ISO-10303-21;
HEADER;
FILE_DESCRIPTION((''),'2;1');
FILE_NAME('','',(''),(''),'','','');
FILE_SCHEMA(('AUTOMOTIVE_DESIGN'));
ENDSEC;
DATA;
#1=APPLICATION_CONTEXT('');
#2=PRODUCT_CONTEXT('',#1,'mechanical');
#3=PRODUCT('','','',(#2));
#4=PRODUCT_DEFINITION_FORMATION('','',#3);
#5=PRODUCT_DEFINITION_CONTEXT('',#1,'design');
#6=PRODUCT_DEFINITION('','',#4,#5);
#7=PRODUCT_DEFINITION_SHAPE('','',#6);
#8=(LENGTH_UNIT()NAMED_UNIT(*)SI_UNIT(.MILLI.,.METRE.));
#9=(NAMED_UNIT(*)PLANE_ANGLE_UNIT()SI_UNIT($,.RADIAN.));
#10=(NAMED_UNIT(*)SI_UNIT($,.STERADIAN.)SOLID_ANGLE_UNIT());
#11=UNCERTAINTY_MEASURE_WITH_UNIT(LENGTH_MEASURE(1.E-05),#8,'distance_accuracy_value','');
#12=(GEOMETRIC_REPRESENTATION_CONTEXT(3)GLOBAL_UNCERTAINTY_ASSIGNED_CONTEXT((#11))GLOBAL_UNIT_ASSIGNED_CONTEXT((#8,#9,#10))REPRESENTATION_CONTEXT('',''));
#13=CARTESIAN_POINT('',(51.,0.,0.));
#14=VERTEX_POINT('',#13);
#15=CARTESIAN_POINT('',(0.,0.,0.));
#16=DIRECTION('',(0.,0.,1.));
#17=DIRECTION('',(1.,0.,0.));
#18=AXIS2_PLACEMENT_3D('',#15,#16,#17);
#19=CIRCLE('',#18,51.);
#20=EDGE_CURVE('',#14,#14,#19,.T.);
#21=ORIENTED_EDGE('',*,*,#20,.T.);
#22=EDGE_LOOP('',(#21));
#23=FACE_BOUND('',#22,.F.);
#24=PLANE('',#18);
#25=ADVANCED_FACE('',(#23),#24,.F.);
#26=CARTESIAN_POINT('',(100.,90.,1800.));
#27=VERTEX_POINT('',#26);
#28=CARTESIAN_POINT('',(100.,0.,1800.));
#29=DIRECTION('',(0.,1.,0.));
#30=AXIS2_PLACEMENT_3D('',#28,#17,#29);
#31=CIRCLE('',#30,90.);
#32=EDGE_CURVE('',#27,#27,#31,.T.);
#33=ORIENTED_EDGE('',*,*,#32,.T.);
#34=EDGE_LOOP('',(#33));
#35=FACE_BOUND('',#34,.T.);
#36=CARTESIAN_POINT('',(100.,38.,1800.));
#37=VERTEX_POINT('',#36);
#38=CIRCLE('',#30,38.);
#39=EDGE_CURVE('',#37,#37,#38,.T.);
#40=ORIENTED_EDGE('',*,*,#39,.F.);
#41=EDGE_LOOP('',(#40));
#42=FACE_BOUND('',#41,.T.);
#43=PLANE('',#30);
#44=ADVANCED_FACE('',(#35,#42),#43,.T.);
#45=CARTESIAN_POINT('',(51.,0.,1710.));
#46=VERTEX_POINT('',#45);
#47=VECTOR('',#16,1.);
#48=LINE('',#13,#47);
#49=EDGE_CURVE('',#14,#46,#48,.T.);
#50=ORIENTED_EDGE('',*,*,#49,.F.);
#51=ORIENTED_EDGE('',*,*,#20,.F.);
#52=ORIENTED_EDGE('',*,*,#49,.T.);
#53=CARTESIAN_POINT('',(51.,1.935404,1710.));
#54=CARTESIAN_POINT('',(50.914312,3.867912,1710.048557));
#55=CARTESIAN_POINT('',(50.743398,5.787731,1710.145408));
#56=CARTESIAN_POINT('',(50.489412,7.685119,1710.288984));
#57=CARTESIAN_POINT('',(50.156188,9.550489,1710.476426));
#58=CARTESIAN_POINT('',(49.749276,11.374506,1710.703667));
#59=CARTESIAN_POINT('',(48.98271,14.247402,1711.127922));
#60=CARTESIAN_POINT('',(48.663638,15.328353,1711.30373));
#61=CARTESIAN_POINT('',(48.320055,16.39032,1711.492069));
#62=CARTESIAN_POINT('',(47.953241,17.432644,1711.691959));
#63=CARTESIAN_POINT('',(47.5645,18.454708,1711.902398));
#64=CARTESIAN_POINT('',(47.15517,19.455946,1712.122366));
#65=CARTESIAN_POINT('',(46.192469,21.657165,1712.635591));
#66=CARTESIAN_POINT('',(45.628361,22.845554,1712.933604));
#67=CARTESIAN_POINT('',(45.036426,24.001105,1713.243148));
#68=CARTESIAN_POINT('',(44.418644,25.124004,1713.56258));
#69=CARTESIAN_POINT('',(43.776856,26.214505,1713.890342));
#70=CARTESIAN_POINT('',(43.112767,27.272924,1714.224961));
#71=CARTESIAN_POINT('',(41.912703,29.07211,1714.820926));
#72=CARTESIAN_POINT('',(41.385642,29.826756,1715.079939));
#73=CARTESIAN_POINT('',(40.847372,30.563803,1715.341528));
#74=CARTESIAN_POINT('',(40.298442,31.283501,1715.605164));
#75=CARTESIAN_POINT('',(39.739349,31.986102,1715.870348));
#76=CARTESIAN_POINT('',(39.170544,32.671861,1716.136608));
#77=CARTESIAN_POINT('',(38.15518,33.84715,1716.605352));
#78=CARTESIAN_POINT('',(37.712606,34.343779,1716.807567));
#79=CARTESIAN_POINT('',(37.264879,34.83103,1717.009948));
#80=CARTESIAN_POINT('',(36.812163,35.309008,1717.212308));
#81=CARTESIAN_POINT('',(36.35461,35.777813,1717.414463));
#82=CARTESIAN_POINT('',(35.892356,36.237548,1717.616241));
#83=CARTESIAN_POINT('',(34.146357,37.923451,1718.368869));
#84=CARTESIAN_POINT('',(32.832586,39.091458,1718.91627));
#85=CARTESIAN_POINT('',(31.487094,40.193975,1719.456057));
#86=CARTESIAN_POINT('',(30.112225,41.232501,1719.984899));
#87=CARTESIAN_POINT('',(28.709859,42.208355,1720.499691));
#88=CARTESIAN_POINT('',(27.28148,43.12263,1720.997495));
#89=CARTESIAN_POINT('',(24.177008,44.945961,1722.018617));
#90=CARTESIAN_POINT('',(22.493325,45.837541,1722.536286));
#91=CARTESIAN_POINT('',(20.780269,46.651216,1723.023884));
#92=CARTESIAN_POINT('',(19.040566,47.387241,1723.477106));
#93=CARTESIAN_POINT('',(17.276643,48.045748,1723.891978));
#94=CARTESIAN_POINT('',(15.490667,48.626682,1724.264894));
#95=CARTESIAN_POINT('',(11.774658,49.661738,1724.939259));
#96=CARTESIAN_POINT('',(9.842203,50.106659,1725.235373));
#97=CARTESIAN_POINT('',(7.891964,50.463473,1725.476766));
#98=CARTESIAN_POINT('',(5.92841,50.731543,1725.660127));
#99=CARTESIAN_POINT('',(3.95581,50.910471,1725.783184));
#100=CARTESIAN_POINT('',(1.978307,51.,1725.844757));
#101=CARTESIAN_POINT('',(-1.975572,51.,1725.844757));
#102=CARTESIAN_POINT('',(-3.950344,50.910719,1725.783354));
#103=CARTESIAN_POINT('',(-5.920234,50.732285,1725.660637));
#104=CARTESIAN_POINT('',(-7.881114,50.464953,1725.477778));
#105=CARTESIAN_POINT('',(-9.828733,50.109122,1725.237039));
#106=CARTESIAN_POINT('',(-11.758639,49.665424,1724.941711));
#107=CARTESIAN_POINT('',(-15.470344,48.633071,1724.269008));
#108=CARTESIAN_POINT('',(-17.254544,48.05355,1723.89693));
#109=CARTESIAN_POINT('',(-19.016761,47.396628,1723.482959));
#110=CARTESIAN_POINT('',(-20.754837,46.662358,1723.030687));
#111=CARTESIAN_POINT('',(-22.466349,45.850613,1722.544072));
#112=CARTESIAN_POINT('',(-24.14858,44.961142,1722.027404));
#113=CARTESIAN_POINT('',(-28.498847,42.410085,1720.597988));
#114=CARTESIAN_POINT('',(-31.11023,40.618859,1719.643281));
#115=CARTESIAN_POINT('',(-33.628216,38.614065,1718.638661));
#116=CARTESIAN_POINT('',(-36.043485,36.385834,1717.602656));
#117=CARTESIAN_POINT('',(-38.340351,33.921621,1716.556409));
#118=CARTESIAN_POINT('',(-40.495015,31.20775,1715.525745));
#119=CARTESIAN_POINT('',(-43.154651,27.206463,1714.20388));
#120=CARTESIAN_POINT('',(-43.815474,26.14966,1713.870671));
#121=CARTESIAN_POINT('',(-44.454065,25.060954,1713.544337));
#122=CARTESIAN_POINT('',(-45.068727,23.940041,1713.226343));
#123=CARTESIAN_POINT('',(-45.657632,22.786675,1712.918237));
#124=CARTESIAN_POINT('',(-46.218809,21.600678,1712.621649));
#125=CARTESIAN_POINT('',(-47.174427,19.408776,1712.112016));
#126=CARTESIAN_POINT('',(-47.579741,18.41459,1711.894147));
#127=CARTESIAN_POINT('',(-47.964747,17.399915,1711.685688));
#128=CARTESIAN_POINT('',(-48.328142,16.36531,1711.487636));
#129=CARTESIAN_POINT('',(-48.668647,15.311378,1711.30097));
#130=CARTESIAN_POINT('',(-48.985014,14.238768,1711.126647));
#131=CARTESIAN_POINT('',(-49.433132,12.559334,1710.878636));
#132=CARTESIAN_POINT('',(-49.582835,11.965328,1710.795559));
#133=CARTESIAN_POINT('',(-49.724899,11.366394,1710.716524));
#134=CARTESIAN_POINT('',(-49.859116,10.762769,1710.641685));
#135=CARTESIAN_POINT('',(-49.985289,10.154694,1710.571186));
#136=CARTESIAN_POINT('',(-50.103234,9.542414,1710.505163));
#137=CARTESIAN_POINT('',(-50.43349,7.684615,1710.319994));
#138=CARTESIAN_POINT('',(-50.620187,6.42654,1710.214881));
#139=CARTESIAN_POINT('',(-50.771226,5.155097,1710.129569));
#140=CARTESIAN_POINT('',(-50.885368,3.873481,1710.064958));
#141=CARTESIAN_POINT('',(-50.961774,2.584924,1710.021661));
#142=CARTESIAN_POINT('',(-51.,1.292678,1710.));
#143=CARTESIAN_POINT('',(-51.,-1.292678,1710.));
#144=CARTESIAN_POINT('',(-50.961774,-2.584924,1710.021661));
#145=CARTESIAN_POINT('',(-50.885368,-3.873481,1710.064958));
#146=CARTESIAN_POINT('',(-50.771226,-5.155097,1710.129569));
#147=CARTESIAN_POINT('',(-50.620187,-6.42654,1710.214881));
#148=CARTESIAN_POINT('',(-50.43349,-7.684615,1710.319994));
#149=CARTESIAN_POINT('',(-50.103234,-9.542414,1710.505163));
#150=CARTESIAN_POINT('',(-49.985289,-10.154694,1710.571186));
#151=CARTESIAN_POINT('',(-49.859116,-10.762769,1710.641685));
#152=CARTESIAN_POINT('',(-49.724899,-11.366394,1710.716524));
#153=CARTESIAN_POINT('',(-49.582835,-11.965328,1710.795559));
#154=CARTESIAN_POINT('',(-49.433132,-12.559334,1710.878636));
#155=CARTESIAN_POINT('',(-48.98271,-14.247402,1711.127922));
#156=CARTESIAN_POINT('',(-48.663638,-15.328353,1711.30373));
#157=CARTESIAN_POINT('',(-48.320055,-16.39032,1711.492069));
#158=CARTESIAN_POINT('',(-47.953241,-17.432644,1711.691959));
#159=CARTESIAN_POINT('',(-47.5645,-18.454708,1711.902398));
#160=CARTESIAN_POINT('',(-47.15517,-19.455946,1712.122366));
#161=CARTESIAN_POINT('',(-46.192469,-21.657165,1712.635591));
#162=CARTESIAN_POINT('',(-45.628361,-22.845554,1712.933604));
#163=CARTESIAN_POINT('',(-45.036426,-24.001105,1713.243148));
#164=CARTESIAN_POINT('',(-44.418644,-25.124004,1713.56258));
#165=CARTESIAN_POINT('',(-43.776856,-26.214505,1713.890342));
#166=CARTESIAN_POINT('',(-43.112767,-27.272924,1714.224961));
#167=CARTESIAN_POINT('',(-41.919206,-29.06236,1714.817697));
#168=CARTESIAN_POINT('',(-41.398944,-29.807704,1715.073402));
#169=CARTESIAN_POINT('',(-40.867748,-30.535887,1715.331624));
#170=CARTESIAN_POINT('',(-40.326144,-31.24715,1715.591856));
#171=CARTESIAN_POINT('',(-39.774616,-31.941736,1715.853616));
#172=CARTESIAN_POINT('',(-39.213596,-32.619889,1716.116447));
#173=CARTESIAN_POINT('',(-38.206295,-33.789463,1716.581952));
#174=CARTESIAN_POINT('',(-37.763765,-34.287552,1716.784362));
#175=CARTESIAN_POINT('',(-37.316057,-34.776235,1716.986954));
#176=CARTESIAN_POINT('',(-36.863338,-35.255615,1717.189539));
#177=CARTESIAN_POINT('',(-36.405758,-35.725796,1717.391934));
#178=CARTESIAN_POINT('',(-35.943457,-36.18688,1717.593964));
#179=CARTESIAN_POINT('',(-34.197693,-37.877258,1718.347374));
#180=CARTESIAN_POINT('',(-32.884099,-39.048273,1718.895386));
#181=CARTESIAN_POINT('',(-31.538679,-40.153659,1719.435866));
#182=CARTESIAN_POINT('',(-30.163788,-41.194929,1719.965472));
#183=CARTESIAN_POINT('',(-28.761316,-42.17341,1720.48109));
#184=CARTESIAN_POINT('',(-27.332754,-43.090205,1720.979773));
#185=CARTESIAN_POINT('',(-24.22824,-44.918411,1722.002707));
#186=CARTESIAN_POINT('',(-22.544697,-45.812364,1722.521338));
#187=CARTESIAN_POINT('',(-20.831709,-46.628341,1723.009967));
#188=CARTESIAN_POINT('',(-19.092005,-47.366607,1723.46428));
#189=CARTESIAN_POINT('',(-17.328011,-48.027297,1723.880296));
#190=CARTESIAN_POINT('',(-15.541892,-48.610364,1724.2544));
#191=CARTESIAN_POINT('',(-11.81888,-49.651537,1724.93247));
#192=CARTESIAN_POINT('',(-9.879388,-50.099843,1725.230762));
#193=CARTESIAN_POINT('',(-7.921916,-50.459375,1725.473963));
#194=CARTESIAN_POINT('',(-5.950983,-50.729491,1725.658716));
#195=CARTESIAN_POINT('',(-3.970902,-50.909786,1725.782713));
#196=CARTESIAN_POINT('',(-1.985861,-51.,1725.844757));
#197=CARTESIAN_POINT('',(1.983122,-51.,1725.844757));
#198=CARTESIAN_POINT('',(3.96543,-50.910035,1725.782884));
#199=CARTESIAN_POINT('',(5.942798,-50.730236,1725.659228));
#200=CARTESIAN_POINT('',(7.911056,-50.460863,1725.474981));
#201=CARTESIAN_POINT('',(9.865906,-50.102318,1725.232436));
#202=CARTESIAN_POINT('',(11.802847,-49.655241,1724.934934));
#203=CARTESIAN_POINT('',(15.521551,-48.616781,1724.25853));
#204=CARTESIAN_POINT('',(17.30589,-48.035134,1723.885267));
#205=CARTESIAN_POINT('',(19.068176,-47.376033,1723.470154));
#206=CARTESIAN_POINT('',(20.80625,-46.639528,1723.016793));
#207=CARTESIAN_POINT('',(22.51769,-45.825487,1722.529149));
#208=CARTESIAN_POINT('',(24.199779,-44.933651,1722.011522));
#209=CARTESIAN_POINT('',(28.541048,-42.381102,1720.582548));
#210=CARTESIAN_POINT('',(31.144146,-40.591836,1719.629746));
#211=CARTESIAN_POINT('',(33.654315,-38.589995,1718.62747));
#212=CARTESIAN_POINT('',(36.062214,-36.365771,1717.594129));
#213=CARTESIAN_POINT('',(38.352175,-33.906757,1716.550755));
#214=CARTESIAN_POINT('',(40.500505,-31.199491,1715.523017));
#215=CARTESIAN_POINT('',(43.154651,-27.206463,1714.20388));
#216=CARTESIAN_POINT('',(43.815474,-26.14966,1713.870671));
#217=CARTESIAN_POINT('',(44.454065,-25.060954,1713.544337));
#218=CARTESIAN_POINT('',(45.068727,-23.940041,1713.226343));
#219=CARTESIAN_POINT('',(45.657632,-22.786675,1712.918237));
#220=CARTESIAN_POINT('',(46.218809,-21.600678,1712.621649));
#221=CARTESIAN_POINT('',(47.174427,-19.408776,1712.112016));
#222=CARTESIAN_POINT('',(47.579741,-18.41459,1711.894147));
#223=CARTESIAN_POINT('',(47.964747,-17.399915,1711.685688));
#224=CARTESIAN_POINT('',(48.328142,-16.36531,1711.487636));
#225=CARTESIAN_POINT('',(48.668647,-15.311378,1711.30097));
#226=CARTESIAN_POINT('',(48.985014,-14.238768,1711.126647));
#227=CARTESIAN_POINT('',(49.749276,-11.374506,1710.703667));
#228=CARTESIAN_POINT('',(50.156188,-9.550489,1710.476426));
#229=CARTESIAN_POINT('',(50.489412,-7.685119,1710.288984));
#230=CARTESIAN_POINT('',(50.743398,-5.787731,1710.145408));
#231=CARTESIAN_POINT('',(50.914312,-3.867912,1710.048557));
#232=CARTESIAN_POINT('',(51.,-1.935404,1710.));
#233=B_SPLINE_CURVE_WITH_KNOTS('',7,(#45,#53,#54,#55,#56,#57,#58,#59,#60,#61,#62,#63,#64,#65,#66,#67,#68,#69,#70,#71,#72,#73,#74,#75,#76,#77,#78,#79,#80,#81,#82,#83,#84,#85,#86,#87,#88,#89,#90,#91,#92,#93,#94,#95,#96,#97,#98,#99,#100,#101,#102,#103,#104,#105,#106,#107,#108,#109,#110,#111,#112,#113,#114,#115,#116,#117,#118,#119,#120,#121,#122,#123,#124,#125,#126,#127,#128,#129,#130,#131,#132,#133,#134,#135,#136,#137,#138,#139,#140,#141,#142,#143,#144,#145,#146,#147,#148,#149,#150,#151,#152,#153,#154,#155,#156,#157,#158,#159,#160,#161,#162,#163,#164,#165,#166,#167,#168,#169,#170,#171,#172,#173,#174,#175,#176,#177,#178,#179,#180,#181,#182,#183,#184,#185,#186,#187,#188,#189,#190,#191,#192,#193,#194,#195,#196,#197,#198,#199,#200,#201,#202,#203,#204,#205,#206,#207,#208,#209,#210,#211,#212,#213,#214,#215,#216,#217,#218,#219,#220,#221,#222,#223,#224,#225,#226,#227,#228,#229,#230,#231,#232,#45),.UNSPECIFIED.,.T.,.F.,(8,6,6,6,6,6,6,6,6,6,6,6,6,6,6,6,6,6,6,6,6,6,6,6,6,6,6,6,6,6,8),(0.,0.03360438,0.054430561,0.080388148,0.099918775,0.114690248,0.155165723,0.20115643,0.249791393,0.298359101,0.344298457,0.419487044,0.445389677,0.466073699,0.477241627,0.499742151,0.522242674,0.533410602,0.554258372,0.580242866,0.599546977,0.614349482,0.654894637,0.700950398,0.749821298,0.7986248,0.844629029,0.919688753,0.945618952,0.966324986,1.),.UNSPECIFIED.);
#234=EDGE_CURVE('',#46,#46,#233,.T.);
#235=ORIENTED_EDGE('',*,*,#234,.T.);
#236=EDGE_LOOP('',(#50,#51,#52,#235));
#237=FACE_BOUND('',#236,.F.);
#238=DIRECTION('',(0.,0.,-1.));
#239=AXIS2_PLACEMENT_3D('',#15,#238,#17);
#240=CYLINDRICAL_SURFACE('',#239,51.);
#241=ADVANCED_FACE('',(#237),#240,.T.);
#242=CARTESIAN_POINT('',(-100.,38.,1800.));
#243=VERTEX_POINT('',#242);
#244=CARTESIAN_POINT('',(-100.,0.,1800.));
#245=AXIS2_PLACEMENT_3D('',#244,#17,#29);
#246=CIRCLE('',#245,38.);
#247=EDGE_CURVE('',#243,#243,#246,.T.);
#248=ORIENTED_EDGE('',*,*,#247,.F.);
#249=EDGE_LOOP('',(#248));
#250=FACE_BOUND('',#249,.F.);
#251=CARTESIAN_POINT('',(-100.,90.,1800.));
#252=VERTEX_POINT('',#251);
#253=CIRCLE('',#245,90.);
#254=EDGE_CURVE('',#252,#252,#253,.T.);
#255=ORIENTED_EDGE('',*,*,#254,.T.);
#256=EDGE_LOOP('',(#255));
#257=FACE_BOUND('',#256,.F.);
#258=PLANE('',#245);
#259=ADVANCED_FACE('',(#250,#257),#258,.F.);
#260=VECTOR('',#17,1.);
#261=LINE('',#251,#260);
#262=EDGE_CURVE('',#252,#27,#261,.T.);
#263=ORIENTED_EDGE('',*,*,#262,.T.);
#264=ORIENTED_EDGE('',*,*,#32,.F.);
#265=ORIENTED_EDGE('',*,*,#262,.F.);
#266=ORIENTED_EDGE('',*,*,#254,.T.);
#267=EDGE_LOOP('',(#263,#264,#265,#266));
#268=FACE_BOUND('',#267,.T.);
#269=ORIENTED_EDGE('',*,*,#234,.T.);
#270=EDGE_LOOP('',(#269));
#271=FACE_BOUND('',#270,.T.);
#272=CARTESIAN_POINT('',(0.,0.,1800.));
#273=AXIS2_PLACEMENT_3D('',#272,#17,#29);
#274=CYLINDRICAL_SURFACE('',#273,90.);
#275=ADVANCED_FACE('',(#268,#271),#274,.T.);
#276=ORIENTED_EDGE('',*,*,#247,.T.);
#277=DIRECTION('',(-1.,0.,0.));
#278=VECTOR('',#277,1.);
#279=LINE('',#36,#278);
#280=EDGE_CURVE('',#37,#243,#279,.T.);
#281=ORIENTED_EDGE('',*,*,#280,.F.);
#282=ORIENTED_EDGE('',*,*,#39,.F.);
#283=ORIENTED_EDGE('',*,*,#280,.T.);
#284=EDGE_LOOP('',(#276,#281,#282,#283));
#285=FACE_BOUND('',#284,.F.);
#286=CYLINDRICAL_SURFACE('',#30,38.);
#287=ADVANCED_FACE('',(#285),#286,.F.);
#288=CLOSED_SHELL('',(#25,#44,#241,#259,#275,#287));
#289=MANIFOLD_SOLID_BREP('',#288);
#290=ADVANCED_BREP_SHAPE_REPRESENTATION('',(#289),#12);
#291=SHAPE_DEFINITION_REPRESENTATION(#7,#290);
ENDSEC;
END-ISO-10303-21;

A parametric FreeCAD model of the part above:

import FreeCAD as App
import Part
import Sketcher
from FreeCAD import Vector

doc = App.newDocument("Part")
body = doc.addObject("PartDesign::Body", "Body")

# Sketch on XY plane
sketch1 = body.newObject("Sketcher::SketchObject", "Sketch")
sketch1.AttachmentSupport = (doc.getObject("XY_Plane"), [""])
sketch1.MapMode = "FlatFace"
sketch1.addGeometry(Part.Circle(Vector(0, 0, 0), Vector(0, 0, 1), 51), False)
sketch1.addConstraint([
    Sketcher.Constraint("Coincident", 0, 3, -1, 1),
    Sketcher.Constraint("Diameter", 0, 102.0),
])
pad1 = body.newObject("PartDesign::Pad", "Pad")
pad1.Profile = sketch1
pad1.Length = 1800

# Sketch on YZ plane
sketch2 = body.newObject("Sketcher::SketchObject", "Sketch001")
sketch2.AttachmentSupport = (doc.getObject("YZ_Plane"), [""])
sketch2.MapMode = "FlatFace"
sketch2.addGeometry(Part.Circle(Vector(0, 1800, 0), Vector(0, 0, 1), 90), False)
sketch2.addConstraint([
    Sketcher.Constraint("PointOnObject", 0, 3, -2),
    Sketcher.Constraint("Diameter", 0, 180.0),
    Sketcher.Constraint("DistanceY", -1, 1, 0, 3, 1800.0),
])
pad2 = body.newObject("PartDesign::Pad", "Pad001")
pad2.Profile = sketch2
pad2.Length = 200
pad2.Midplane = True

# Sketch on YZ plane
sketch3 = body.newObject("Sketcher::SketchObject", "Sketch002")
sketch3.AttachmentSupport = (doc.getObject("YZ_Plane"), [""])
sketch3.MapMode = "FlatFace"
sketch3.AttachmentOffset = App.Placement(Vector(0, 0, 100), App.Rotation())
sketch3.addGeometry(Part.Circle(Vector(0, 1800, 0), Vector(0, 0, 1), 38), False)
sketch3.addConstraint([
    Sketcher.Constraint("PointOnObject", 0, 3, -2),
    Sketcher.Constraint("Diameter", 0, 76.0),
    Sketcher.Constraint("DistanceY", -1, 1, 0, 3, 1800.0),
])
pocket1 = body.newObject("PartDesign::Pocket", "Pocket")
pocket1.Profile = sketch3
pocket1.Type = "ThroughAll"

doc.recompute()
